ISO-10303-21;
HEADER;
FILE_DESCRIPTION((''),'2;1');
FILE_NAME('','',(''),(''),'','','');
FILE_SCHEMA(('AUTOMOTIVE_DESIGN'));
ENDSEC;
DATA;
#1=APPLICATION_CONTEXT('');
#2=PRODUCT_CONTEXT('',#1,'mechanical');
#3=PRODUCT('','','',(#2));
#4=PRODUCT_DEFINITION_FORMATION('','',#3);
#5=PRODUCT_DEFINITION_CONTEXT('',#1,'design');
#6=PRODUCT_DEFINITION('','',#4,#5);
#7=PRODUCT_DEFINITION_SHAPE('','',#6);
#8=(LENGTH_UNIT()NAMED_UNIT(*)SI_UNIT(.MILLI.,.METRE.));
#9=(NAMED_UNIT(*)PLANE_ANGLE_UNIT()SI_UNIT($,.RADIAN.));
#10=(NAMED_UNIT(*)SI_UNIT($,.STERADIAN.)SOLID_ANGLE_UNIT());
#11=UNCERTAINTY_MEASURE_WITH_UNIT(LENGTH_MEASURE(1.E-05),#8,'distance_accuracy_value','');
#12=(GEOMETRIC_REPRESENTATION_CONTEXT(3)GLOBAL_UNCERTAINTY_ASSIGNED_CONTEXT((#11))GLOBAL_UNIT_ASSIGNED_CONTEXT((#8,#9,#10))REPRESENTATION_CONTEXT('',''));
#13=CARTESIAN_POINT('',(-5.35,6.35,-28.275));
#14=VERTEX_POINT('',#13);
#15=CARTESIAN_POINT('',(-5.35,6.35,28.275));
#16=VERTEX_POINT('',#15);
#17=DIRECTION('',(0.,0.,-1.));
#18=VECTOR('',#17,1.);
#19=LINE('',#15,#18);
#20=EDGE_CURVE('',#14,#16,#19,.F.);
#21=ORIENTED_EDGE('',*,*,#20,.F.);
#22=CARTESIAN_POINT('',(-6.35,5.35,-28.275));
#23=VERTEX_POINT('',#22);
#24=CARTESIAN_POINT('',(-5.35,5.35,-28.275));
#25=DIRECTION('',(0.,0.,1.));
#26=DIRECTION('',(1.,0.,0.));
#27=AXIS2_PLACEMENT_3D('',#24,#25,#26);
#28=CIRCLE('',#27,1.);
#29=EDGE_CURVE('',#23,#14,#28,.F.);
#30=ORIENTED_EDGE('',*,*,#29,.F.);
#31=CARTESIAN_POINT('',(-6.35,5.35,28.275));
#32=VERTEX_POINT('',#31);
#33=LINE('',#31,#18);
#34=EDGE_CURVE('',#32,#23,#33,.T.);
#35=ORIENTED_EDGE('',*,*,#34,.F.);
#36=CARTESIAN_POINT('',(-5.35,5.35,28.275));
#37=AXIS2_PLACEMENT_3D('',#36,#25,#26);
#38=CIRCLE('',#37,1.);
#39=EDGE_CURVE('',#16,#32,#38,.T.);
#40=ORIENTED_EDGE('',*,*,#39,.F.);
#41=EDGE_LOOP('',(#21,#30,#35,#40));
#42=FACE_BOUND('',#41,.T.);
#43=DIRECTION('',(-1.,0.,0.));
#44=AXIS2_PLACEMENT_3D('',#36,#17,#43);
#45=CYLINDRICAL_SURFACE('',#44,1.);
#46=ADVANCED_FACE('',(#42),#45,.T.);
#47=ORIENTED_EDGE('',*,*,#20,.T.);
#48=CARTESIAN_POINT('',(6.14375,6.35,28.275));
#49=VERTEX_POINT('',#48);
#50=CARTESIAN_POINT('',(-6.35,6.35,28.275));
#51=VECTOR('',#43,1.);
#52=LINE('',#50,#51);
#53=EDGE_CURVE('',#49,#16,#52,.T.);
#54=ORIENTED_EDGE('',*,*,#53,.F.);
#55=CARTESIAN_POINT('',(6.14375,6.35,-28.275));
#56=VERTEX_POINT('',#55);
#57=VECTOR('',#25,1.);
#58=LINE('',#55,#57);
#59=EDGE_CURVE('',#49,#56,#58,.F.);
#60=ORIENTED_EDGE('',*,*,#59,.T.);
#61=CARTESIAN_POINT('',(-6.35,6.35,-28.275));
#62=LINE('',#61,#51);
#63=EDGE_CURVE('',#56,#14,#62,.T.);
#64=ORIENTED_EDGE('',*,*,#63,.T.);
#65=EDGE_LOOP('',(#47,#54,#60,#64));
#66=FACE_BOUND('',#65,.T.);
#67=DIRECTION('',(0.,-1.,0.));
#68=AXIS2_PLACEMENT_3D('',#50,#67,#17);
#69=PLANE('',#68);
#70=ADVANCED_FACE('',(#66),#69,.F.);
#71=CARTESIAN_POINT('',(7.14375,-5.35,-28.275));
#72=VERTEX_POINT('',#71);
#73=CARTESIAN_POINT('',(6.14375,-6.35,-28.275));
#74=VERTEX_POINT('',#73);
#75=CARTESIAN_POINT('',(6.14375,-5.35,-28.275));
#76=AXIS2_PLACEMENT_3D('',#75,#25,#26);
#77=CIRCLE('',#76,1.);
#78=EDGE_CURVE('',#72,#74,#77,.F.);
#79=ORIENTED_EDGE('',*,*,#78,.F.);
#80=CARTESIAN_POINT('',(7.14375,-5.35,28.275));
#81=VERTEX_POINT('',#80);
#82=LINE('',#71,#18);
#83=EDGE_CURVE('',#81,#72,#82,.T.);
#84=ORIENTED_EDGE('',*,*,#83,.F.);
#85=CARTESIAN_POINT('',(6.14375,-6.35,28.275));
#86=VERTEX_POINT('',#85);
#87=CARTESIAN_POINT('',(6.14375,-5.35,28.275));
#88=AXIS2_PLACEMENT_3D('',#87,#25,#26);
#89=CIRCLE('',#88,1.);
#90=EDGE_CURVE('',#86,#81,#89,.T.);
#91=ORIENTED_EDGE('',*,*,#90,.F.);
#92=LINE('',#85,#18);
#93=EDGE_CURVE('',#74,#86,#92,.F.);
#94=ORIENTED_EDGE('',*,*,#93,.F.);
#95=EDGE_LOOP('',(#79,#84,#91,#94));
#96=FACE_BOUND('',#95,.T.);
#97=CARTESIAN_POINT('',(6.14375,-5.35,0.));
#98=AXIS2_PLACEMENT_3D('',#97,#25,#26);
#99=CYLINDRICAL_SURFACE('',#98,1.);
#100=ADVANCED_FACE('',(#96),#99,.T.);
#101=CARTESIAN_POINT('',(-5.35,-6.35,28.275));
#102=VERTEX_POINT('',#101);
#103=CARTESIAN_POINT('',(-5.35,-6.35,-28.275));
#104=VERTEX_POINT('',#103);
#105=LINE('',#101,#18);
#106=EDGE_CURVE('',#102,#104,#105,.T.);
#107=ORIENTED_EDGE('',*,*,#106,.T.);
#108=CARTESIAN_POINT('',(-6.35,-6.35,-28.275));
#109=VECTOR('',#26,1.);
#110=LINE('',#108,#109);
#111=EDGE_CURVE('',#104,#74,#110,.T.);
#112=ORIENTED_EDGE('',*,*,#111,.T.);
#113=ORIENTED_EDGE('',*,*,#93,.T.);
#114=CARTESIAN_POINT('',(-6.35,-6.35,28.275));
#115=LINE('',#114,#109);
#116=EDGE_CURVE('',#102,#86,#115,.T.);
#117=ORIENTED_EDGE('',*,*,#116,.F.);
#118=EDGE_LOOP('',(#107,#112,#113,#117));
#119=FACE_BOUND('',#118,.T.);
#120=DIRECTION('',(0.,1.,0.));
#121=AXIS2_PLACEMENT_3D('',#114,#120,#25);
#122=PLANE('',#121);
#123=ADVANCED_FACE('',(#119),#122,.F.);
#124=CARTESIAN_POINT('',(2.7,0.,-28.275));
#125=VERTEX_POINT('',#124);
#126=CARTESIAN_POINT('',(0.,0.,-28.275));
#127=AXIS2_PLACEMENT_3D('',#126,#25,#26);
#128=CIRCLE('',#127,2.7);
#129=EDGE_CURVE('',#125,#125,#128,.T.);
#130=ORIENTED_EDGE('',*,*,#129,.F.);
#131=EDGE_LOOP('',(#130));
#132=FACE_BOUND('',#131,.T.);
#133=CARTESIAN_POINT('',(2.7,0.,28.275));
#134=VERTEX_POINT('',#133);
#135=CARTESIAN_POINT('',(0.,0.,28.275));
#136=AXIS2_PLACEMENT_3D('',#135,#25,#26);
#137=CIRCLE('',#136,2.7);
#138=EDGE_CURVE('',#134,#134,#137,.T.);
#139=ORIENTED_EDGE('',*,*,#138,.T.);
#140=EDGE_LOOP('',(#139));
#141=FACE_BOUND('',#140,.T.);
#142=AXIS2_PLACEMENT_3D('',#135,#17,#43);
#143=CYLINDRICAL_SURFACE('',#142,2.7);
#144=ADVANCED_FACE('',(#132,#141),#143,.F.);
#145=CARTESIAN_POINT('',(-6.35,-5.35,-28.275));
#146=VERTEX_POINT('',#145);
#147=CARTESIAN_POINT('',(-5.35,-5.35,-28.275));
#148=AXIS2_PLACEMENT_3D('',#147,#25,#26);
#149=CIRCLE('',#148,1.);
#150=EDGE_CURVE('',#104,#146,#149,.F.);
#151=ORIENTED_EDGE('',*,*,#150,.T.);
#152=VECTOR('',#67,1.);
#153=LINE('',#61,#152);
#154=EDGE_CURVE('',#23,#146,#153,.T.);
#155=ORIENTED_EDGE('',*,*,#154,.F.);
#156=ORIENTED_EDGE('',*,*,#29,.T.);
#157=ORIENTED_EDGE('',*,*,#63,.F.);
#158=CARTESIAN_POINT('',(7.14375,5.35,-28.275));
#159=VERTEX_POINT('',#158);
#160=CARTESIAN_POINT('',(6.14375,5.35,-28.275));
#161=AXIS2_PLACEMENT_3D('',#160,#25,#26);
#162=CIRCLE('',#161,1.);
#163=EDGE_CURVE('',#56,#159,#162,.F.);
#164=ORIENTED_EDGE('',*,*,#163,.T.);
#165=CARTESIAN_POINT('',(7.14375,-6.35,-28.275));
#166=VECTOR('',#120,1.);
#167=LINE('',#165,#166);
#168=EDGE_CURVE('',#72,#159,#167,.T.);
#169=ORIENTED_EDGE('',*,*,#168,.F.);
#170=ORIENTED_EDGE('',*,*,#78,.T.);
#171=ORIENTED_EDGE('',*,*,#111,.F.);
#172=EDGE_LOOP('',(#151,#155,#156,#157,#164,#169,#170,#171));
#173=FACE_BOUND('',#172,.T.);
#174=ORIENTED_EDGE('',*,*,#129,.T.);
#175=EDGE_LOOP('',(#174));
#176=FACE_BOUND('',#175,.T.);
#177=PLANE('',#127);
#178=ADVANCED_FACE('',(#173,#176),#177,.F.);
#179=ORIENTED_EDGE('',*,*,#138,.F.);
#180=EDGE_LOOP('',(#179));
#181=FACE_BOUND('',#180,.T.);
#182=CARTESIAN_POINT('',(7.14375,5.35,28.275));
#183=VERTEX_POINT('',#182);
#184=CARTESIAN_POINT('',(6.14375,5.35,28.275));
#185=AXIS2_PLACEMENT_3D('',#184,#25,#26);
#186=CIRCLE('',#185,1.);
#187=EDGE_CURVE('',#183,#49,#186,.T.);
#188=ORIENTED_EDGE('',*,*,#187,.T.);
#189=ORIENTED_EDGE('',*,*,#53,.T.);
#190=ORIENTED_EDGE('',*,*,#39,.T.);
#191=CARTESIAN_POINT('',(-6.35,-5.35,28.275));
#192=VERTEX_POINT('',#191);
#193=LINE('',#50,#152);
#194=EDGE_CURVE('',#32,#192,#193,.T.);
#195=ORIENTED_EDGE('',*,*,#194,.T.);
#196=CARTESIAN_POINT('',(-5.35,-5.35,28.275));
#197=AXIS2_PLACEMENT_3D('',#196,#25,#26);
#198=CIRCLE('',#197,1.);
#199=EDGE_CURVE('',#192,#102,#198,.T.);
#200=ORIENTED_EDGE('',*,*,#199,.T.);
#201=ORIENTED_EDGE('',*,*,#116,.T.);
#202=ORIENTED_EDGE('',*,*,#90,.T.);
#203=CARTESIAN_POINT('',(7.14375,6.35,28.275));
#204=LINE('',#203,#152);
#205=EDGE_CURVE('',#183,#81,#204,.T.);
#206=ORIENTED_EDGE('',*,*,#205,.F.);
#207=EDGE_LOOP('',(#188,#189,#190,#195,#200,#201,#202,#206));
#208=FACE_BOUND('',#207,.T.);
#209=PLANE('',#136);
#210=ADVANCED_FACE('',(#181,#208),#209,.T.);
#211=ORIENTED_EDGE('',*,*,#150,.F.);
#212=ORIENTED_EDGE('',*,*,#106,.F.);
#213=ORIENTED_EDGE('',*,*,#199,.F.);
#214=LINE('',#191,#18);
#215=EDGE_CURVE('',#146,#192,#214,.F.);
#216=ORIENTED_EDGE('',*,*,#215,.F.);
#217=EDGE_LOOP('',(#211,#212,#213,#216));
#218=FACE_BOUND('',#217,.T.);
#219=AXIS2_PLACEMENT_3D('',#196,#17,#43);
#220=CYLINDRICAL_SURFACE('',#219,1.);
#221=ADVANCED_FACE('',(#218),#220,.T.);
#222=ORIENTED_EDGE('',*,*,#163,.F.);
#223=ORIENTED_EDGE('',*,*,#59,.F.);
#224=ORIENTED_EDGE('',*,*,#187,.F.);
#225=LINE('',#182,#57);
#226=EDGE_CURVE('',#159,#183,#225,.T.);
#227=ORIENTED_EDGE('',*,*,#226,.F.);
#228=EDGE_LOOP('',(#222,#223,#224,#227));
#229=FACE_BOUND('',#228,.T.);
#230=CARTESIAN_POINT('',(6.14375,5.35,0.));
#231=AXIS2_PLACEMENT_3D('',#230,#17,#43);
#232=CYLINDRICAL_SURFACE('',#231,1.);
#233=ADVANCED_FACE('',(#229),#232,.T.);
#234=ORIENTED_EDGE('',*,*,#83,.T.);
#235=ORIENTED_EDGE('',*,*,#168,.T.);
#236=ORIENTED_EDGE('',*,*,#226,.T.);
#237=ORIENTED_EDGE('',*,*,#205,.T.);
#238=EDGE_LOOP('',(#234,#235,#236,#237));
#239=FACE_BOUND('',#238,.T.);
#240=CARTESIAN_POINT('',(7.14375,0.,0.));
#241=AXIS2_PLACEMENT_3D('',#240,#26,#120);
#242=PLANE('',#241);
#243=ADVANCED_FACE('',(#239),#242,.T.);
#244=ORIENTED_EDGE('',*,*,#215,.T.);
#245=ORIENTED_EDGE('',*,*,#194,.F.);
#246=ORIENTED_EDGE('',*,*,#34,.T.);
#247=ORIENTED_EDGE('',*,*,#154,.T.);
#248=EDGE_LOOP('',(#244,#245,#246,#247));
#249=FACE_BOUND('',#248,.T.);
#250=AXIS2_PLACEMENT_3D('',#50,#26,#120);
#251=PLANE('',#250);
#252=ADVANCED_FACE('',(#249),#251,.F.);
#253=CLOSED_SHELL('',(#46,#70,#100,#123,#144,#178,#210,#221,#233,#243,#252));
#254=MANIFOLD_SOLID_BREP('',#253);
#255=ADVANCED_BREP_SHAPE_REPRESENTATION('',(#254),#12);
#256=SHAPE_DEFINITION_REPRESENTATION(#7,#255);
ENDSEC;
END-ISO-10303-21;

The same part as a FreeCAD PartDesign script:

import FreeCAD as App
import Part
import Sketcher

V = App.Vector
Q = App.Units.Quantity


def edges_at(feature, points):
    """Names of the edges that pass closest to the given points."""
    edges = feature.Shape.Edges
    near = lambda p: min(range(len(edges)), key=lambda i: edges[i].distToShape(Part.Vertex(*p))[0])
    return sorted({f"Edge{near(p) + 1}" for p in points})

doc = App.newDocument("Part")
body = doc.addObject("PartDesign::Body", "Body")

sketch1 = body.newObject("Sketcher::SketchObject", "Sketch")
sketch1.AttachmentSupport = (doc.getObject("XY_Plane"), [""])
sketch1.MapMode = "FlatFace"
sketch1.addGeometry([
    Part.LineSegment(V(-6.3, 6.3, 0), V(-6.3, -6.3, 0)),
    Part.LineSegment(V(-6.3, -6.3, 0), V(6.3, -6.3, 0)),
    Part.LineSegment(V(6.3, -6.3, 0), V(6.3, 6.3, 0)),
    Part.LineSegment(V(6.3, 6.3, 0), V(-6.3, 6.3, 0)),
    Part.Circle(V(0, 0, 0), V(0, 0, 1), 2.7),
], False)
sketch1.addConstraint([
    Sketcher.Constraint("Coincident", 0, 2, 1, 1),
    Sketcher.Constraint("Coincident", 1, 2, 2, 1),
    Sketcher.Constraint("Coincident", 2, 2, 3, 1),
    Sketcher.Constraint("Coincident", 3, 2, 0, 1),
    Sketcher.Constraint("Vertical", 0),
    Sketcher.Constraint("Horizontal", 1),
    Sketcher.Constraint("Vertical", 2),
    Sketcher.Constraint("Horizontal", 3),
    Sketcher.Constraint("Coincident", 4, 3, -1, 1),
    Sketcher.Constraint("Symmetric", 0, 2, 2, 2, -1, 1),
    Sketcher.Constraint("Equal", 3, 0),
    Sketcher.Constraint("Diameter", 4, Q("5.4 mm")),
    Sketcher.Constraint("DistanceX", 1, 1, 1, 2, Q("12.7 mm")),
])
pad1 = body.newObject("PartDesign::Pad", "Pad")
pad1.Profile = sketch1
pad1.Length = 56.55
pad1.Midplane = True

sketch2 = body.newObject("Sketcher::SketchObject", "Sketch001")
sketch2.AttachmentSupport = (doc.getObject("YZ_Plane"), [""])
sketch2.MapMode = "FlatFace"
sketch2.AttachmentOffset = App.Placement(V(0, 0, 6.35), App.Rotation())
sketch2.addGeometry([
    Part.LineSegment(V(6, 28, 0), V(-6, 28, 0)),
    Part.LineSegment(V(-6, 28, 0), V(-6, -28, 0)),
    Part.LineSegment(V(-6, -28, 0), V(6, -28, 0)),
    Part.LineSegment(V(6, -28, 0), V(6, 28, 0)),
], False)
sketch2.addConstraint([
    Sketcher.Constraint("Coincident", 0, 2, 1, 1),
    Sketcher.Constraint("Coincident", 1, 2, 2, 1),
    Sketcher.Constraint("Coincident", 2, 2, 3, 1),
    Sketcher.Constraint("Coincident", 3, 2, 0, 1),
    Sketcher.Constraint("Horizontal", 0),
    Sketcher.Constraint("Vertical", 1),
    Sketcher.Constraint("Horizontal", 2),
    Sketcher.Constraint("Vertical", 3),
    Sketcher.Constraint("Symmetric", 0, 2, 2, 2, -1, 1),
    Sketcher.Constraint("DistanceX", 0, 2, 0, 1, Q("12.7 mm")),
    Sketcher.Constraint("DistanceY", 1, 2, 1, 1, Q("56.55 mm")),
])
pad2 = body.newObject("PartDesign::Pad", "Pad001")
pad2.Profile = sketch2
pad2.Length = 0.79375
doc.recompute()

fillet = body.newObject("PartDesign::Fillet", "Fillet")
fillet.Base = (pad2, edges_at(pad2, [
    (7.144, -6.35, 0),
    (7.144, 6.35, 0),
    (-6.35, -6.35, 0),
    (-6.35, 6.35, 0),
]))
fillet.Radius = 1

doc.recompute()
